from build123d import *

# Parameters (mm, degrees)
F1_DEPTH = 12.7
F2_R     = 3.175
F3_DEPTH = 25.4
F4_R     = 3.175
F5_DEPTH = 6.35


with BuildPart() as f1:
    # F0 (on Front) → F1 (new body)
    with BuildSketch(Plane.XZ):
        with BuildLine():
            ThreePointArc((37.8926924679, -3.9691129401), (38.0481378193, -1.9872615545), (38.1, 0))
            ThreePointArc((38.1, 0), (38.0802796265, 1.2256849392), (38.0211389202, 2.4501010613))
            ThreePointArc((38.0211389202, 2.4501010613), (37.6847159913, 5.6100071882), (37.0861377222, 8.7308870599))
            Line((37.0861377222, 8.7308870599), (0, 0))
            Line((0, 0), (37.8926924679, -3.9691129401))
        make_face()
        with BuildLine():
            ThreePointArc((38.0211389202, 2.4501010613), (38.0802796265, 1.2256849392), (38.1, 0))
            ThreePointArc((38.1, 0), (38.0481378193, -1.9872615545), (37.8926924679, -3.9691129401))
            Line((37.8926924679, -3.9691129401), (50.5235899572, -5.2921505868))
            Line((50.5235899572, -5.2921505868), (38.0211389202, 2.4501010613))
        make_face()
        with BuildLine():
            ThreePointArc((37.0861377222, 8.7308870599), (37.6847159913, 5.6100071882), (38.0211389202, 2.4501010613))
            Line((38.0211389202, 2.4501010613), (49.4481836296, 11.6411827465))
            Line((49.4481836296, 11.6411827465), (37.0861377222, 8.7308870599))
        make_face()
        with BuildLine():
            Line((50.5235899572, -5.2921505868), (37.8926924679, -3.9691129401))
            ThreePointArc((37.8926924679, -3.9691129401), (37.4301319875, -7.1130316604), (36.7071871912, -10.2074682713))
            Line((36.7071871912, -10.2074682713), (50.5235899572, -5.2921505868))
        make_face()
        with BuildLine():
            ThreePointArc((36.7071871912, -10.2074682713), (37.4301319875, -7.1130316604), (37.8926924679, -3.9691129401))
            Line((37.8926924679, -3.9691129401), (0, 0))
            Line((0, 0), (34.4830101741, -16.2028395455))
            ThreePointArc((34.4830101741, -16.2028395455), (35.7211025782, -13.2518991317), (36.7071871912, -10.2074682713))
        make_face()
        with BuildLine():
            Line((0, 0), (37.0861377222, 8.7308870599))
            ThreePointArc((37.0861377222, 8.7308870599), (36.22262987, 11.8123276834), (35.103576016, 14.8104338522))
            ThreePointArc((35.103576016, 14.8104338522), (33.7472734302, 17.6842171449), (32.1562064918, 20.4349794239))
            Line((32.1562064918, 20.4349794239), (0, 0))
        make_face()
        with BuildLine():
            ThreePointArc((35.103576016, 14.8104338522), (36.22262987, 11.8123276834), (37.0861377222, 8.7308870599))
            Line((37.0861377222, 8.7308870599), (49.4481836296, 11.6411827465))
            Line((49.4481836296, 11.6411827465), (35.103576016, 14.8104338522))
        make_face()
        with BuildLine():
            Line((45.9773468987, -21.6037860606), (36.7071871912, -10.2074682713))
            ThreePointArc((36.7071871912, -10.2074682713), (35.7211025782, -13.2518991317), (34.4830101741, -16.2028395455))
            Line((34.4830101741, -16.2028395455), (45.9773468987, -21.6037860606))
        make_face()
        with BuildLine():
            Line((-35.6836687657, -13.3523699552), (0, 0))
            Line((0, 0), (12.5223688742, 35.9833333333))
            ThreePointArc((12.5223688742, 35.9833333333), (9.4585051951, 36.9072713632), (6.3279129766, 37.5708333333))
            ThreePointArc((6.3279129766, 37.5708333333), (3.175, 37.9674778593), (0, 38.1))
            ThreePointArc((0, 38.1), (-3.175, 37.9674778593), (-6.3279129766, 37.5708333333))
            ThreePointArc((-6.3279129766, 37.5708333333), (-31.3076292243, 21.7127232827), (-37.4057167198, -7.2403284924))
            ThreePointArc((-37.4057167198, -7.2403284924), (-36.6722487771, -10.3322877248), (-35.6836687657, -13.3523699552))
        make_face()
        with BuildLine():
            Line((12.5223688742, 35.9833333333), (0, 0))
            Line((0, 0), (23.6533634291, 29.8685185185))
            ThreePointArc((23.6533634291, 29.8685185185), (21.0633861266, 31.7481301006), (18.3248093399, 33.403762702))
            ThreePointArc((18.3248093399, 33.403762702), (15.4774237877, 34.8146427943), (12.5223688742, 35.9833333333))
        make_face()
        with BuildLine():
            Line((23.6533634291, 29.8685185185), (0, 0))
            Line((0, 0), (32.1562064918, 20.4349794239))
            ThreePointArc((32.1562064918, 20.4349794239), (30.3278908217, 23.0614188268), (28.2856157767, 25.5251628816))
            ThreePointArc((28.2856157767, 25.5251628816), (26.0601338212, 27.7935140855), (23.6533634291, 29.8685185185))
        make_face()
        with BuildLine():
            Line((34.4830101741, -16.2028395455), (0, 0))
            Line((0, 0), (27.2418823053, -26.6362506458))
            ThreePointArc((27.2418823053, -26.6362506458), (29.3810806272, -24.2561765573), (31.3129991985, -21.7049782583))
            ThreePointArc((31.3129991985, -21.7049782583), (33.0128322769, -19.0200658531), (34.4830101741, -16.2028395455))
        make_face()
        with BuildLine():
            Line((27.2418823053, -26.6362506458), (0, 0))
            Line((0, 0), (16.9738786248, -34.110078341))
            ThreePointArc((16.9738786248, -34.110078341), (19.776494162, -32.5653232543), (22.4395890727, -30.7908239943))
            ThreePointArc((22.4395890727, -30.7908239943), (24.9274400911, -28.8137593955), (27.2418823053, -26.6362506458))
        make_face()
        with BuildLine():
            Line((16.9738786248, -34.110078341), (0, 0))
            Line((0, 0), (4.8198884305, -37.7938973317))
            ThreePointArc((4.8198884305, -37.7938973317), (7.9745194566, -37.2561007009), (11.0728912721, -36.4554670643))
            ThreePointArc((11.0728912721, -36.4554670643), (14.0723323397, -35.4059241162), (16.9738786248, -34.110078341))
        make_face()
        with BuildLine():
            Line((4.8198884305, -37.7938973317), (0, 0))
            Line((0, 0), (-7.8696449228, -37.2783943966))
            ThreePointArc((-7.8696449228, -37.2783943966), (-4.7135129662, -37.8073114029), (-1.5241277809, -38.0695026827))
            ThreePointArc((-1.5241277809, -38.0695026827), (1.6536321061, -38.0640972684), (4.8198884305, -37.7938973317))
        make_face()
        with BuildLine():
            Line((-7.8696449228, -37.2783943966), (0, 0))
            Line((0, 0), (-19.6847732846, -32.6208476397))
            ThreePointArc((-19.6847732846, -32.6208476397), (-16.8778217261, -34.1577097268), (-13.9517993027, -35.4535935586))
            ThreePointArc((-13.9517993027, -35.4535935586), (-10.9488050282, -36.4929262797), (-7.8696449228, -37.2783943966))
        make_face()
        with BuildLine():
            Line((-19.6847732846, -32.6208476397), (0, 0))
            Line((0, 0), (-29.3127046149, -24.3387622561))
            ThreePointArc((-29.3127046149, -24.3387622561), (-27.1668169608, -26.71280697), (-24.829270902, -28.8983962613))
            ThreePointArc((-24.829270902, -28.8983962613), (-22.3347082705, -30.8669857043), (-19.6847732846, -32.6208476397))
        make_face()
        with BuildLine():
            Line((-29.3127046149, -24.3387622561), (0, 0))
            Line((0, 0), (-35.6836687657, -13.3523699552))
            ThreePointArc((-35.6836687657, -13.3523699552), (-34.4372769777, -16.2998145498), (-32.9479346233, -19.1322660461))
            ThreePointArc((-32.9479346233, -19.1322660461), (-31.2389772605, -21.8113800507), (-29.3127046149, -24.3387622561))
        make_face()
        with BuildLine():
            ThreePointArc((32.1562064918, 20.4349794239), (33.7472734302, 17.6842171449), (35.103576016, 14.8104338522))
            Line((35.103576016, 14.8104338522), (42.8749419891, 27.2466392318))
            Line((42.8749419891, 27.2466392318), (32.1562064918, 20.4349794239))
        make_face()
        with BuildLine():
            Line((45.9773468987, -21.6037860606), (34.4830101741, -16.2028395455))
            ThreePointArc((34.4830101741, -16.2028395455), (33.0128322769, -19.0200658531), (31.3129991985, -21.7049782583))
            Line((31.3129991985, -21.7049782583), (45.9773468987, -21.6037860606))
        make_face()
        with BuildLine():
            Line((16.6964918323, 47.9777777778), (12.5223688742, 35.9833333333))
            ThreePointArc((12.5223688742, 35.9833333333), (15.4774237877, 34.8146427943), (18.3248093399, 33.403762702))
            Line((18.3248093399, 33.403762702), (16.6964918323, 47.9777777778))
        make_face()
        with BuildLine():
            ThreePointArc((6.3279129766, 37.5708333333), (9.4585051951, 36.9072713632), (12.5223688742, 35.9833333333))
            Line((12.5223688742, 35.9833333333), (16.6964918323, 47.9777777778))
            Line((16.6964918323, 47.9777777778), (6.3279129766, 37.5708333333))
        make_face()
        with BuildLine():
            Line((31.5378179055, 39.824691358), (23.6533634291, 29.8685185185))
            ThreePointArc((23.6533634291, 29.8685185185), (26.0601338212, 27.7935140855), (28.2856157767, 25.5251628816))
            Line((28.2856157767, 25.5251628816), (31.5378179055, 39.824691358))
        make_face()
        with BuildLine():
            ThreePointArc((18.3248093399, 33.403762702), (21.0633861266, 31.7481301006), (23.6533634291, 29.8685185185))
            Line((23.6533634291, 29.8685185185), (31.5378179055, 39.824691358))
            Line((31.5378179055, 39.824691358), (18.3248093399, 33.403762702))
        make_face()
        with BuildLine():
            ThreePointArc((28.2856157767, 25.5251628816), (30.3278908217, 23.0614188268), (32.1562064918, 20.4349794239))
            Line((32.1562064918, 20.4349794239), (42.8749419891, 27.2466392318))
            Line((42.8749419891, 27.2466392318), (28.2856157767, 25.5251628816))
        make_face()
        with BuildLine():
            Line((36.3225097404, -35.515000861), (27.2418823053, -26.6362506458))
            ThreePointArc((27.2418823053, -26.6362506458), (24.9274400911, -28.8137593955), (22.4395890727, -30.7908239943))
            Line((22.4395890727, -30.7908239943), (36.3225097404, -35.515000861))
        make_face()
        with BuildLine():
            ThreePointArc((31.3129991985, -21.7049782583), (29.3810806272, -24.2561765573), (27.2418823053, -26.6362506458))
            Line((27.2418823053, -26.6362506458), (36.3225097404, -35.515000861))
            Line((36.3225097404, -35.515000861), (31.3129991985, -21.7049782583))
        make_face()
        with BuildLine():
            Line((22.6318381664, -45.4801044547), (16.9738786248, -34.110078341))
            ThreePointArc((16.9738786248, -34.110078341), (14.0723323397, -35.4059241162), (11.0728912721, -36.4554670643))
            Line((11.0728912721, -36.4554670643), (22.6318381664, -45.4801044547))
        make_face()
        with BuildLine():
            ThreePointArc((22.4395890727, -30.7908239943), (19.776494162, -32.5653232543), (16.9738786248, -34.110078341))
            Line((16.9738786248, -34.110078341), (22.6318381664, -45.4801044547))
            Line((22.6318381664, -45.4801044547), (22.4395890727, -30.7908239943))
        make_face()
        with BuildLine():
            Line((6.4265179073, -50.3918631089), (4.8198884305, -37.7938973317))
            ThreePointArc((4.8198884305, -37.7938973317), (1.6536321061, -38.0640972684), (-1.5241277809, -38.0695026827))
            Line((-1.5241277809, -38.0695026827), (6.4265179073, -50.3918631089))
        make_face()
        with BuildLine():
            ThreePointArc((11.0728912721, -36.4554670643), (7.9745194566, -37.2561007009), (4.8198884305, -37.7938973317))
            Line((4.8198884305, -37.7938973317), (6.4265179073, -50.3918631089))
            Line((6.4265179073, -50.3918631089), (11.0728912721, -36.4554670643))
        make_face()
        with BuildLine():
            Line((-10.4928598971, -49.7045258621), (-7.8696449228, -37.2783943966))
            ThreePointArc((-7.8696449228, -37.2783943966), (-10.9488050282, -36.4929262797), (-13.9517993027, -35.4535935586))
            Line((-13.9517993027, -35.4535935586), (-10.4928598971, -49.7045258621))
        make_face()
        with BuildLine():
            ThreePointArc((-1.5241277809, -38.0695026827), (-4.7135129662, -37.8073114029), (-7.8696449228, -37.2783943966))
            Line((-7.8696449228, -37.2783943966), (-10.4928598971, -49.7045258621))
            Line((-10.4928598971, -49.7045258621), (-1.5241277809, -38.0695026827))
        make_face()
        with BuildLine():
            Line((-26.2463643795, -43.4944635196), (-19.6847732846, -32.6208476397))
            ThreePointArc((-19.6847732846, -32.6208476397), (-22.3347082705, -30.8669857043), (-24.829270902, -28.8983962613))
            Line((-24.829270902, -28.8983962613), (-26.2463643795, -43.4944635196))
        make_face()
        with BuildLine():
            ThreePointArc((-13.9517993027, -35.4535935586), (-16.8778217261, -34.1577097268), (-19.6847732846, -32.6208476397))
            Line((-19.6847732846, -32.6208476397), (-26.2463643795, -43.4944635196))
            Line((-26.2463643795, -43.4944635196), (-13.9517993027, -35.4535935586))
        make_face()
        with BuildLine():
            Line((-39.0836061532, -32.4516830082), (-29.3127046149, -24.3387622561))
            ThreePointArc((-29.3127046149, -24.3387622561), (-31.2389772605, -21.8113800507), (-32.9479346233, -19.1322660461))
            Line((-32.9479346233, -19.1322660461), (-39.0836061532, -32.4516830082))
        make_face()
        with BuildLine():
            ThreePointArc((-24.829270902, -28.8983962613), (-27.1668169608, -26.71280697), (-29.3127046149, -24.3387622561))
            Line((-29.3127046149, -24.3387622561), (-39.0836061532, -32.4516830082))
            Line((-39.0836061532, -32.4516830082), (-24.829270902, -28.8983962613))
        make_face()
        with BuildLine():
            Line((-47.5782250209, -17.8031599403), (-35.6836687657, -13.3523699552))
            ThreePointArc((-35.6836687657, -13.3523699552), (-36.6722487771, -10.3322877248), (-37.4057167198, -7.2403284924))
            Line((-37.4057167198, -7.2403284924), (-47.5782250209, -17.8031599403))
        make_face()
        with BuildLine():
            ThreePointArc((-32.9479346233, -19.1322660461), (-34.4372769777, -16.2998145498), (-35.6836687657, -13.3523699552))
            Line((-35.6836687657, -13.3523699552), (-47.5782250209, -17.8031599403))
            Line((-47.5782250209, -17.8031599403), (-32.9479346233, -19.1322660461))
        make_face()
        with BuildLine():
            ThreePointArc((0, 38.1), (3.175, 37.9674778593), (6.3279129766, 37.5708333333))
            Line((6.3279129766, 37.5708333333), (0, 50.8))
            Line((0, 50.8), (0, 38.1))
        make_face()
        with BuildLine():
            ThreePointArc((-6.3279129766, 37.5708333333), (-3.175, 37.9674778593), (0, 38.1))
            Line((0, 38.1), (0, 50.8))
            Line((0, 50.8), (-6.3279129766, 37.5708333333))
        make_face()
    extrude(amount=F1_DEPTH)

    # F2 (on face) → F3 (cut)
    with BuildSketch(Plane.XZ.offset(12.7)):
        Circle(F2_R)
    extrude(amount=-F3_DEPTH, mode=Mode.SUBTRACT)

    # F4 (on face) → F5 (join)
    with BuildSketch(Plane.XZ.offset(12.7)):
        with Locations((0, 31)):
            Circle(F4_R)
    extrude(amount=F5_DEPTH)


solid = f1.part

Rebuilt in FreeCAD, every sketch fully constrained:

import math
import FreeCAD as App
import Part
import Sketcher

V = App.Vector
Q = App.Units.Quantity

doc = App.newDocument("Part")
body = doc.addObject("PartDesign::Body", "Body")

# Sketch on XZ plane
sketch1 = body.newObject("Sketcher::SketchObject", "Sketch")
sketch1.AttachmentSupport = (doc.getObject("XZ_Plane"), [""])
sketch1.MapMode = "FlatFace"
sketch1.addGeometry(Part.LineSegment(V(46, -22, 0), V(37, -10, 0)), False)
sketch1.addGeometry(Part.LineSegment(V(37, -10, 0), V(51, -5, 0)), False)
sketch1.addGeometry(Part.LineSegment(V(51, -5, 0), V(38, 2, 0)), False)
sketch1.addGeometry(Part.LineSegment(V(38, 2, 0), V(49, 12, 0)), False)
sketch1.addGeometry(Part.LineSegment(V(49, 12, 0), V(35, 15, 0)), False)
sketch1.addGeometry(Part.LineSegment(V(35, 15, 0), V(43, 27, 0)), False)
sketch1.addGeometry(Part.LineSegment(V(43, 27, 0), V(28, 26, 0)), False)
sketch1.addGeometry(Part.LineSegment(V(28, 26, 0), V(32, 40, 0)), False)
sketch1.addGeometry(Part.LineSegment(V(32, 40, 0), V(18, 33, 0)), False)
sketch1.addGeometry(Part.LineSegment(V(18, 33, 0), V(17, 48, 0)), False)
sketch1.addGeometry(Part.LineSegment(V(17, 48, 0), V(6, 38, 0)), False)
sketch1.addGeometry(Part.LineSegment(V(6, 38, 0), V(0, 51, 0)), False)
sketch1.addGeometry(Part.LineSegment(V(0, 51, 0), V(-6, 38, 0)), False)
sketch1.addGeometry(Part.ArcOfCircle(Part.Circle(V(0, 0, 0), V(0, 0, 1), 38), math.radians(100), math.radians(191)), False)
sketch1.addGeometry(Part.LineSegment(V(-37, -7, 0), V(-48, -18, 0)), False)
sketch1.addGeometry(Part.LineSegment(V(-48, -18, 0), V(-33, -19, 0)), False)
sketch1.addGeometry(Part.LineSegment(V(-33, -19, 0), V(-39, -32, 0)), False)
sketch1.addGeometry(Part.LineSegment(V(-39, -32, 0), V(-25, -29, 0)), False)
sketch1.addGeometry(Part.LineSegment(V(-25, -29, 0), V(-26, -43, 0)), False)
sketch1.addGeometry(Part.LineSegment(V(-26, -43, 0), V(-14, -35, 0)), False)
sketch1.addGeometry(Part.LineSegment(V(-14, -35, 0), V(-10, -50, 0)), False)
sketch1.addGeometry(Part.LineSegment(V(-10, -50, 0), V(-2, -38, 0)), False)
sketch1.addGeometry(Part.LineSegment(V(-2, -38, 0), V(6, -50, 0)), False)
sketch1.addGeometry(Part.LineSegment(V(6, -50, 0), V(11, -36, 0)), False)
sketch1.addGeometry(Part.LineSegment(V(11, -36, 0), V(23, -45, 0)), False)
sketch1.addGeometry(Part.LineSegment(V(23, -45, 0), V(22, -31, 0)), False)
sketch1.addGeometry(Part.LineSegment(V(22, -31, 0), V(36, -36, 0)), False)
sketch1.addGeometry(Part.LineSegment(V(36, -36, 0), V(31, -22, 0)), False)
sketch1.addGeometry(Part.LineSegment(V(31, -22, 0), V(46, -22, 0)), False)
sketch1.addConstraint(Sketcher.Constraint("Coincident", 0, 2, 1, 1))
sketch1.addConstraint(Sketcher.Constraint("Coincident", 1, 2, 2, 1))
sketch1.addConstraint(Sketcher.Constraint("Coincident", 2, 2, 3, 1))
sketch1.addConstraint(Sketcher.Constraint("Coincident", 3, 2, 4, 1))
sketch1.addConstraint(Sketcher.Constraint("Coincident", 4, 2, 5, 1))
sketch1.addConstraint(Sketcher.Constraint("Coincident", 5, 2, 6, 1))
sketch1.addConstraint(Sketcher.Constraint("Coincident", 6, 2, 7, 1))
sketch1.addConstraint(Sketcher.Constraint("Coincident", 7, 2, 8, 1))
sketch1.addConstraint(Sketcher.Constraint("Coincident", 8, 2, 9, 1))
sketch1.addConstraint(Sketcher.Constraint("Coincident", 9, 2, 10, 1))
sketch1.addConstraint(Sketcher.Constraint("Coincident", 10, 2, 11, 1))
sketch1.addConstraint(Sketcher.Constraint("Coincident", 11, 2, 12, 1))
sketch1.addConstraint(Sketcher.Constraint("Coincident", 12, 2, 13, 1))
sketch1.addConstraint(Sketcher.Constraint("Coincident", 13, 2, 14, 1))
sketch1.addConstraint(Sketcher.Constraint("Coincident", 14, 2, 15, 1))
sketch1.addConstraint(Sketcher.Constraint("Coincident", 15, 2, 16, 1))
sketch1.addConstraint(Sketcher.Constraint("Coincident", 16, 2, 17, 1))
sketch1.addConstraint(Sketcher.Constraint("Coincident", 17, 2, 18, 1))
sketch1.addConstraint(Sketcher.Constraint("Coincident", 18, 2, 19, 1))
sketch1.addConstraint(Sketcher.Constraint("Coincident", 19, 2, 20, 1))
sketch1.addConstraint(Sketcher.Constraint("Coincident", 20, 2, 21, 1))
sketch1.addConstraint(Sketcher.Constraint("Coincident", 21, 2, 22, 1))
sketch1.addConstraint(Sketcher.Constraint("Coincident", 22, 2, 23, 1))
sketch1.addConstraint(Sketcher.Constraint("Coincident", 23, 2, 24, 1))
sketch1.addConstraint(Sketcher.Constraint("Coincident", 24, 2, 25, 1))
sketch1.addConstraint(Sketcher.Constraint("Coincident", 25, 2, 26, 1))
sketch1.addConstraint(Sketcher.Constraint("Coincident", 26, 2, 27, 1))
sketch1.addConstraint(Sketcher.Constraint("Coincident", 27, 2, 28, 1))
sketch1.addConstraint(Sketcher.Constraint("Coincident", 28, 2, 0, 1))
sketch1.addConstraint(Sketcher.Constraint("Coincident", 13, 3, -1, 1))
sketch1.addConstraint(Sketcher.Constraint("Symmetric", 10, 2, 12, 2, -2))
sketch1.addConstraint(Sketcher.Constraint("PointOnObject", 11, 2, -2))
sketch1.addConstraint(Sketcher.Constraint("Equal", 1, 3))
sketch1.addConstraint(Sketcher.Constraint("Equal", 0, 4))
sketch1.addConstraint(Sketcher.Constraint("Equal", 3, 5))
sketch1.addConstraint(Sketcher.Constraint("Equal", 4, 6))
sketch1.addConstraint(Sketcher.Constraint("Equal", 5, 7))
sketch1.addConstraint(Sketcher.Constraint("Equal", 6, 8))
sketch1.addConstraint(Sketcher.Constraint("Equal", 7, 9))
sketch1.addConstraint(Sketcher.Constraint("Equal", 8, 10))
sketch1.addConstraint(Sketcher.Constraint("Equal", 9, 11))
sketch1.addConstraint(Sketcher.Constraint("Equal", 12, 14))
sketch1.addConstraint(Sketcher.Constraint("Equal", 10, 15))
sketch1.addConstraint(Sketcher.Constraint("Equal", 14, 16))
sketch1.addConstraint(Sketcher.Constraint("Equal", 15, 17))
sketch1.addConstraint(Sketcher.Constraint("Equal", 16, 18))
sketch1.addConstraint(Sketcher.Constraint("Equal", 17, 19))
sketch1.addConstraint(Sketcher.Constraint("Equal", 18, 20))
sketch1.addConstraint(Sketcher.Constraint("Equal", 19, 21))
sketch1.addConstraint(Sketcher.Constraint("Equal", 20, 22))
sketch1.addConstraint(Sketcher.Constraint("Equal", 21, 23))
sketch1.addConstraint(Sketcher.Constraint("Equal", 22, 24))
sketch1.addConstraint(Sketcher.Constraint("Equal", 23, 25))
sketch1.addConstraint(Sketcher.Constraint("Equal", 24, 26))
sketch1.addConstraint(Sketcher.Constraint("Equal", 25, 27))
sketch1.addConstraint(Sketcher.Constraint("Equal", 26, 28))
sketch1.addConstraint(Sketcher.Constraint("Radius", 13, Q("1.5 in")))
sketch1.addConstraint(Sketcher.Constraint("DistanceY", -1, 1, 11, 2, Q("2 in")))
sketch1.addConstraint(Sketcher.Constraint("DistanceX", 10, 2, 4, 2, Q("1.1329001 in")))
sketch1.addConstraint(Sketcher.Constraint("DistanceX", 27, 2, 2, 2, Q("0.2641 in")))
sketch1.addConstraint(Sketcher.Constraint("DistanceY", -1, 1, 2, 2, Q("2.450101 mm")))
sketch1.addConstraint(Sketcher.Constraint("DistanceX", 19, 2, -1, 1, Q("13.951799 mm")))
sketch1.addConstraint(Sketcher.Constraint("DistanceY", 26, 2, -1, 1, Q("35.515001 mm")))
sketch1.addConstraint(Sketcher.Constraint("DistanceX", -1, 1, 27, 2, Q("31.312999 mm")))
sketch1.addConstraint(Sketcher.Constraint("DistanceY", 6, 2, 8, 2, Q("7.8786 mm")))
sketch1.addConstraint(Sketcher.Constraint("DistanceY", 4, 2, 10, 2, Q("22.760399 mm")))
sketch1.addConstraint(Sketcher.Constraint("DistanceY", 15, 2, 12, 2, Q("56.703099 mm")))
sketch1.addConstraint(Sketcher.Constraint("DistanceY", 22, 2, 18, 2, Q("6.8974 mm")))
sketch1.addConstraint(Sketcher.Constraint("DistanceY", 24, 2, 21, 2, Q("7.410602 mm")))
sketch1.addConstraint(Sketcher.Constraint("DistanceX", 20, 2, 24, 2, Q("33.124698 mm")))
sketch1.addConstraint(Sketcher.Constraint("DistanceX", 25, 2, 0, 2, Q("14.267598 mm")))
sketch1.addConstraint(Sketcher.Constraint("Distance", 0, Q("14.690538 mm")))
sketch1.addConstraint(Sketcher.Constraint("Distance", 2, Q("14.705568 mm")))
sketch1.addConstraint(Sketcher.Constraint("DistanceY", 0, 2, -1, 1, Q("10.207468 mm")))
sketch1.addConstraint(Sketcher.Constraint("DistanceX", -1, 1, 1, 2, Q("50.52359 mm")))
sketch1.addConstraint(Sketcher.Constraint("DistanceX", -1, 1, 5, 2, Q("42.874942 mm")))
sketch1.addConstraint(Sketcher.Constraint("DistanceY", -1, 1, 5, 2, Q("27.246639 mm")))
sketch1.addConstraint(Sketcher.Constraint("DistanceY", -1, 1, 7, 2, Q("39.824691 mm")))
sketch1.addConstraint(Sketcher.Constraint("DistanceX", -1, 1, 8, 2, Q("18.324809 mm")))
sketch1.addConstraint(Sketcher.Constraint("DistanceY", 13, 2, -1, 1, Q("7.240328 mm")))
sketch1.addConstraint(Sketcher.Constraint("DistanceY", 14, 2, -1, 1, Q("17.80316 mm")))
sketch1.addConstraint(Sketcher.Constraint("DistanceX", 17, 2, -1, 1, Q("24.829271 mm")))
sketch1.addConstraint(Sketcher.Constraint("DistanceX", 20, 2, -1, 1, Q("10.49286 mm")))
sketch1.addConstraint(Sketcher.Constraint("DistanceX", -1, 1, 23, 2, Q("11.072891 mm")))
sketch1.addConstraint(Sketcher.Constraint("DistanceX", -1, 1, 26, 2, Q("36.32251 mm")))
sketch1.addConstraint(Sketcher.Constraint("DistanceX", 16, 2, 15, 2, Q("6.135672 mm")))
pad1 = body.newObject("PartDesign::Pad", "Pad")
pad1.Profile = sketch1
pad1.Length = Q("0.5 in")

# Sketch on XZ plane
sketch2 = body.newObject("Sketcher::SketchObject", "Sketch001")
sketch2.AttachmentSupport = (doc.getObject("XZ_Plane"), [""])
sketch2.MapMode = "FlatFace"
sketch2.AttachmentOffset = App.Placement(V(0, 0, 0.5 * 25.4), App.Rotation())
sketch2.addGeometry(Part.Circle(V(0, 0, 0), V(0, 0, 1), 3.2), False)
sketch2.addConstraint(Sketcher.Constraint("Coincident", 0, 3, -1, 1))
sketch2.addConstraint(Sketcher.Constraint("Diameter", 0, Q("0.25 in")))
pocket1 = body.newObject("PartDesign::Pocket", "Pocket")
pocket1.Profile = sketch2
pocket1.Length = Q("1 in")

# Sketch on XZ plane
sketch3 = body.newObject("Sketcher::SketchObject", "Sketch002")
sketch3.AttachmentSupport = (doc.getObject("XZ_Plane"), [""])
sketch3.MapMode = "FlatFace"
sketch3.AttachmentOffset = App.Placement(V(0, 0, 0.5 * 25.4), App.Rotation())
sketch3.addGeometry(Part.Circle(V(0, 31, 0), V(0, 0, 1), 3.2), False)
sketch3.addConstraint(Sketcher.Constraint("PointOnObject", 0, 3, -2))
sketch3.addConstraint(Sketcher.Constraint("Diameter", 0, Q("0.25 in")))
sketch3.addConstraint(Sketcher.Constraint("DistanceY", -1, 1, 0, 3, Q("31 mm")))
pad2 = body.newObject("PartDesign::Pad", "Pad001")
pad2.Profile = sketch3
pad2.Length = Q("0.25 in")

doc.recompute()
